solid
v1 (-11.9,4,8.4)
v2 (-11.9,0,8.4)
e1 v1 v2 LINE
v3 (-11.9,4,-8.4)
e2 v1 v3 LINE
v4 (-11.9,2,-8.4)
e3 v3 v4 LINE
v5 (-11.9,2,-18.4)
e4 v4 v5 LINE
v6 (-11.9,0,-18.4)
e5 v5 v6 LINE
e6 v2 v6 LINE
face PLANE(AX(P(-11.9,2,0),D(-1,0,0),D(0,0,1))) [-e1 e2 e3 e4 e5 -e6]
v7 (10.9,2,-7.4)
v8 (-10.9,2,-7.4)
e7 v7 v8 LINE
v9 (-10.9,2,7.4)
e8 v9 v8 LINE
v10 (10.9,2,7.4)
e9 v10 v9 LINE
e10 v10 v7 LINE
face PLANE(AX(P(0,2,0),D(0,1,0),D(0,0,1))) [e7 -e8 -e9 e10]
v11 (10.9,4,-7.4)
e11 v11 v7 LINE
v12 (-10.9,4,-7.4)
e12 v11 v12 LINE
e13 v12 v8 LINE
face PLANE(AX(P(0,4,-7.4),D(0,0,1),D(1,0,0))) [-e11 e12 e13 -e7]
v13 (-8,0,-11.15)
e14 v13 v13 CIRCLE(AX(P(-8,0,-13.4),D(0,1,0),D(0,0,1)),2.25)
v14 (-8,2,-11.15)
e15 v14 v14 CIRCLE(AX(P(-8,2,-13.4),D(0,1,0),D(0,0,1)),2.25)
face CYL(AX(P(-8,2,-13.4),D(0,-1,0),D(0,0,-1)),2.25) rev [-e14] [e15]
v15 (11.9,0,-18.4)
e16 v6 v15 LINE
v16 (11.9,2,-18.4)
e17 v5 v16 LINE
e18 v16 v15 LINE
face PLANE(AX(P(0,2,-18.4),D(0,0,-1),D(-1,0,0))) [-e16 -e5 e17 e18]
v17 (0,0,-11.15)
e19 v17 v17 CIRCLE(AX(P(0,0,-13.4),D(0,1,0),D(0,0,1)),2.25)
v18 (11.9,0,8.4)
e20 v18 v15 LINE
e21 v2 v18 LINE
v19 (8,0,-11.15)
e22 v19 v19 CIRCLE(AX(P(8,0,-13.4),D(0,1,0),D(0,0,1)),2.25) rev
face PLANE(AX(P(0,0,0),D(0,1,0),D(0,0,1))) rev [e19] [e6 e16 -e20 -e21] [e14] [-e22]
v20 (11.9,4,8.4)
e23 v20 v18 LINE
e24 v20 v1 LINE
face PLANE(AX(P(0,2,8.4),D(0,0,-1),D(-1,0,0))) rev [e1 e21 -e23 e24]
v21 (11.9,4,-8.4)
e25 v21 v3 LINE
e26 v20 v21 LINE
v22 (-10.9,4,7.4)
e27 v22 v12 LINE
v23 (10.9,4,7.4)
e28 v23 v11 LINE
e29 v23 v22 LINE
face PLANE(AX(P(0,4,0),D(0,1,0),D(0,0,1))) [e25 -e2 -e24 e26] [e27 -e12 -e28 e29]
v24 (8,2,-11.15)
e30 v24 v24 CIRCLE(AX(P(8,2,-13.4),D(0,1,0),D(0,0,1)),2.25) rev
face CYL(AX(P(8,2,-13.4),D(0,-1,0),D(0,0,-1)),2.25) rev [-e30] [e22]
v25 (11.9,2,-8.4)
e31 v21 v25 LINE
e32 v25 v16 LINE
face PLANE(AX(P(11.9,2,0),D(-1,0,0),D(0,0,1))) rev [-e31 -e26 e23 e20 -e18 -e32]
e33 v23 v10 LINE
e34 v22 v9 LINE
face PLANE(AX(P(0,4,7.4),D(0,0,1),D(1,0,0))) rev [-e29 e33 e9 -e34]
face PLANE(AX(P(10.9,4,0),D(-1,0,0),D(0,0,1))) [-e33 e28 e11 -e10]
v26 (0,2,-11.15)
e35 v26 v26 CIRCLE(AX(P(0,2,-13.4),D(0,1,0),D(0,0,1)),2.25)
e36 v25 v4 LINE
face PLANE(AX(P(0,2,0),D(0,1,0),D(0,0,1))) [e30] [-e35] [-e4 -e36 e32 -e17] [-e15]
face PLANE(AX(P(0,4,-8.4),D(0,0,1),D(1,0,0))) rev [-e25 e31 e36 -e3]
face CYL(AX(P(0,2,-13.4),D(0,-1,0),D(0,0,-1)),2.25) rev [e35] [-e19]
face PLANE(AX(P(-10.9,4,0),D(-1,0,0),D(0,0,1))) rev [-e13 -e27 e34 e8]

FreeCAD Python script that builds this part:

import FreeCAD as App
import Part
import Sketcher


def add_polygon(sketch, points):
    """Adds a closed chain of lines whose ends are joined by coincident constraints."""
    first, n = sketch.GeometryCount, len(points)
    for a, b in zip(points, points[1:] + points[:1]):
        sketch.addGeometry(Part.LineSegment(App.Vector(*a, 0), App.Vector(*b, 0)), False)
    for i in range(n):
        sketch.addConstraint(Sketcher.Constraint("Coincident", first + i, 2, first + (i + 1) % n, 1))

doc = App.newDocument("Part")
body = doc.addObject("PartDesign::Body", "Body")

sketch1 = doc.addObject("Sketcher::SketchObject", "Sketch")
body.addObject(sketch1)
sketch1.AttachmentSupport = (doc.XZ_Plane, [""])
sketch1.MapMode = "FlatFace"
add_polygon(sketch1, [(-11.9, -18.4), (-11.9, 8.4), (11.9, 8.4), (11.9, -18.4)])
sketch1.addGeometry(Part.Circle(App.Vector(-8, -13.4, 0), App.Vector(0, 0, 1), 2.25), False)
sketch1.addGeometry(Part.Circle(App.Vector(0, -13.4, 0), App.Vector(0, 0, 1), 2.25), False)
sketch1.addGeometry(Part.Circle(App.Vector(8, -13.4, 0), App.Vector(0, 0, 1), 2.25), False)
sketch1.addConstraint([
    Sketcher.Constraint("Vertical", 0),
    Sketcher.Constraint("Horizontal", 1),
    Sketcher.Constraint("Vertical", 2),
    Sketcher.Constraint("Horizontal", 3),
    Sketcher.Constraint("Equal", 4, 5),
    Sketcher.Constraint("Equal", 5, 6),
    Sketcher.Constraint("Symmetric", 4, 3, 6, 3, -2),
    Sketcher.Constraint("PointOnObject", 5, 3, -2),
    Sketcher.Constraint("Horizontal", 4, 3, 5, 3),
    Sketcher.Constraint("Diameter", 4, 4.5),
    Sketcher.Constraint("DistanceX", 1, 1, 1, 2, 23.8),
    Sketcher.Constraint("DistanceY", 0, 1, 0, 2, 26.8),
    Sketcher.Constraint("DistanceX", 4, 3, -1, 1, 8.0),
    Sketcher.Constraint("DistanceY", 2, 2, 6, 3, 5.0),
    Sketcher.Constraint("DistanceY", 4, 3, -1, 1, 13.4),
    Sketcher.Constraint("DistanceX", 0, 2, -1, 1, 11.9),
])
pad1 = doc.addObject("PartDesign::Pad", "Pad")
body.addObject(pad1)
pad1.Profile = sketch1
pad1.Length = 2
pad1.Reversed = True

sketch2 = doc.addObject("Sketcher::SketchObject", "Sketch001")
body.addObject(sketch2)
sketch2.AttachmentSupport = (doc.XZ_Plane, [""])
sketch2.MapMode = "FlatFace"
sketch2.AttachmentOffset = App.Placement(App.Vector(0, 0, -2), App.Rotation())
add_polygon(sketch2, [(-11.9, -8.4), (-11.9, 8.4), (11.9, 8.4), (11.9, -8.4)])
add_polygon(sketch2, [(10.9, 7.4), (-10.9, 7.4), (-10.9, -7.4), (10.9, -7.4)])
sketch2.addConstraint([
    Sketcher.Constraint("Vertical", 0),
    Sketcher.Constraint("Horizontal", 1),
    Sketcher.Constraint("Vertical", 2),
    Sketcher.Constraint("Horizontal", 3),
    Sketcher.Constraint("Horizontal", 4),
    Sketcher.Constraint("Vertical", 5),
    Sketcher.Constraint("Horizontal", 6),
    Sketcher.Constraint("Vertical", 7),
    Sketcher.Constraint("Symmetric", 0, 2, 2, 2, -1, 1),
    Sketcher.Constraint("Symmetric", 4, 2, 6, 2, -1, 1),
    Sketcher.Constraint("DistanceX", 1, 1, 1, 2, 23.8),
    Sketcher.Constraint("DistanceX", 4, 2, 4, 1, 21.8),
    Sketcher.Constraint("DistanceY", 0, 1, 0, 2, 16.8),
    Sketcher.Constraint("DistanceY", 5, 2, 5, 1, 14.8),
])
pad2 = doc.addObject("PartDesign::Pad", "Pad001")
body.addObject(pad2)
pad2.Profile = sketch2
pad2.Length = 2
pad2.Reversed = True

doc.recompute()
